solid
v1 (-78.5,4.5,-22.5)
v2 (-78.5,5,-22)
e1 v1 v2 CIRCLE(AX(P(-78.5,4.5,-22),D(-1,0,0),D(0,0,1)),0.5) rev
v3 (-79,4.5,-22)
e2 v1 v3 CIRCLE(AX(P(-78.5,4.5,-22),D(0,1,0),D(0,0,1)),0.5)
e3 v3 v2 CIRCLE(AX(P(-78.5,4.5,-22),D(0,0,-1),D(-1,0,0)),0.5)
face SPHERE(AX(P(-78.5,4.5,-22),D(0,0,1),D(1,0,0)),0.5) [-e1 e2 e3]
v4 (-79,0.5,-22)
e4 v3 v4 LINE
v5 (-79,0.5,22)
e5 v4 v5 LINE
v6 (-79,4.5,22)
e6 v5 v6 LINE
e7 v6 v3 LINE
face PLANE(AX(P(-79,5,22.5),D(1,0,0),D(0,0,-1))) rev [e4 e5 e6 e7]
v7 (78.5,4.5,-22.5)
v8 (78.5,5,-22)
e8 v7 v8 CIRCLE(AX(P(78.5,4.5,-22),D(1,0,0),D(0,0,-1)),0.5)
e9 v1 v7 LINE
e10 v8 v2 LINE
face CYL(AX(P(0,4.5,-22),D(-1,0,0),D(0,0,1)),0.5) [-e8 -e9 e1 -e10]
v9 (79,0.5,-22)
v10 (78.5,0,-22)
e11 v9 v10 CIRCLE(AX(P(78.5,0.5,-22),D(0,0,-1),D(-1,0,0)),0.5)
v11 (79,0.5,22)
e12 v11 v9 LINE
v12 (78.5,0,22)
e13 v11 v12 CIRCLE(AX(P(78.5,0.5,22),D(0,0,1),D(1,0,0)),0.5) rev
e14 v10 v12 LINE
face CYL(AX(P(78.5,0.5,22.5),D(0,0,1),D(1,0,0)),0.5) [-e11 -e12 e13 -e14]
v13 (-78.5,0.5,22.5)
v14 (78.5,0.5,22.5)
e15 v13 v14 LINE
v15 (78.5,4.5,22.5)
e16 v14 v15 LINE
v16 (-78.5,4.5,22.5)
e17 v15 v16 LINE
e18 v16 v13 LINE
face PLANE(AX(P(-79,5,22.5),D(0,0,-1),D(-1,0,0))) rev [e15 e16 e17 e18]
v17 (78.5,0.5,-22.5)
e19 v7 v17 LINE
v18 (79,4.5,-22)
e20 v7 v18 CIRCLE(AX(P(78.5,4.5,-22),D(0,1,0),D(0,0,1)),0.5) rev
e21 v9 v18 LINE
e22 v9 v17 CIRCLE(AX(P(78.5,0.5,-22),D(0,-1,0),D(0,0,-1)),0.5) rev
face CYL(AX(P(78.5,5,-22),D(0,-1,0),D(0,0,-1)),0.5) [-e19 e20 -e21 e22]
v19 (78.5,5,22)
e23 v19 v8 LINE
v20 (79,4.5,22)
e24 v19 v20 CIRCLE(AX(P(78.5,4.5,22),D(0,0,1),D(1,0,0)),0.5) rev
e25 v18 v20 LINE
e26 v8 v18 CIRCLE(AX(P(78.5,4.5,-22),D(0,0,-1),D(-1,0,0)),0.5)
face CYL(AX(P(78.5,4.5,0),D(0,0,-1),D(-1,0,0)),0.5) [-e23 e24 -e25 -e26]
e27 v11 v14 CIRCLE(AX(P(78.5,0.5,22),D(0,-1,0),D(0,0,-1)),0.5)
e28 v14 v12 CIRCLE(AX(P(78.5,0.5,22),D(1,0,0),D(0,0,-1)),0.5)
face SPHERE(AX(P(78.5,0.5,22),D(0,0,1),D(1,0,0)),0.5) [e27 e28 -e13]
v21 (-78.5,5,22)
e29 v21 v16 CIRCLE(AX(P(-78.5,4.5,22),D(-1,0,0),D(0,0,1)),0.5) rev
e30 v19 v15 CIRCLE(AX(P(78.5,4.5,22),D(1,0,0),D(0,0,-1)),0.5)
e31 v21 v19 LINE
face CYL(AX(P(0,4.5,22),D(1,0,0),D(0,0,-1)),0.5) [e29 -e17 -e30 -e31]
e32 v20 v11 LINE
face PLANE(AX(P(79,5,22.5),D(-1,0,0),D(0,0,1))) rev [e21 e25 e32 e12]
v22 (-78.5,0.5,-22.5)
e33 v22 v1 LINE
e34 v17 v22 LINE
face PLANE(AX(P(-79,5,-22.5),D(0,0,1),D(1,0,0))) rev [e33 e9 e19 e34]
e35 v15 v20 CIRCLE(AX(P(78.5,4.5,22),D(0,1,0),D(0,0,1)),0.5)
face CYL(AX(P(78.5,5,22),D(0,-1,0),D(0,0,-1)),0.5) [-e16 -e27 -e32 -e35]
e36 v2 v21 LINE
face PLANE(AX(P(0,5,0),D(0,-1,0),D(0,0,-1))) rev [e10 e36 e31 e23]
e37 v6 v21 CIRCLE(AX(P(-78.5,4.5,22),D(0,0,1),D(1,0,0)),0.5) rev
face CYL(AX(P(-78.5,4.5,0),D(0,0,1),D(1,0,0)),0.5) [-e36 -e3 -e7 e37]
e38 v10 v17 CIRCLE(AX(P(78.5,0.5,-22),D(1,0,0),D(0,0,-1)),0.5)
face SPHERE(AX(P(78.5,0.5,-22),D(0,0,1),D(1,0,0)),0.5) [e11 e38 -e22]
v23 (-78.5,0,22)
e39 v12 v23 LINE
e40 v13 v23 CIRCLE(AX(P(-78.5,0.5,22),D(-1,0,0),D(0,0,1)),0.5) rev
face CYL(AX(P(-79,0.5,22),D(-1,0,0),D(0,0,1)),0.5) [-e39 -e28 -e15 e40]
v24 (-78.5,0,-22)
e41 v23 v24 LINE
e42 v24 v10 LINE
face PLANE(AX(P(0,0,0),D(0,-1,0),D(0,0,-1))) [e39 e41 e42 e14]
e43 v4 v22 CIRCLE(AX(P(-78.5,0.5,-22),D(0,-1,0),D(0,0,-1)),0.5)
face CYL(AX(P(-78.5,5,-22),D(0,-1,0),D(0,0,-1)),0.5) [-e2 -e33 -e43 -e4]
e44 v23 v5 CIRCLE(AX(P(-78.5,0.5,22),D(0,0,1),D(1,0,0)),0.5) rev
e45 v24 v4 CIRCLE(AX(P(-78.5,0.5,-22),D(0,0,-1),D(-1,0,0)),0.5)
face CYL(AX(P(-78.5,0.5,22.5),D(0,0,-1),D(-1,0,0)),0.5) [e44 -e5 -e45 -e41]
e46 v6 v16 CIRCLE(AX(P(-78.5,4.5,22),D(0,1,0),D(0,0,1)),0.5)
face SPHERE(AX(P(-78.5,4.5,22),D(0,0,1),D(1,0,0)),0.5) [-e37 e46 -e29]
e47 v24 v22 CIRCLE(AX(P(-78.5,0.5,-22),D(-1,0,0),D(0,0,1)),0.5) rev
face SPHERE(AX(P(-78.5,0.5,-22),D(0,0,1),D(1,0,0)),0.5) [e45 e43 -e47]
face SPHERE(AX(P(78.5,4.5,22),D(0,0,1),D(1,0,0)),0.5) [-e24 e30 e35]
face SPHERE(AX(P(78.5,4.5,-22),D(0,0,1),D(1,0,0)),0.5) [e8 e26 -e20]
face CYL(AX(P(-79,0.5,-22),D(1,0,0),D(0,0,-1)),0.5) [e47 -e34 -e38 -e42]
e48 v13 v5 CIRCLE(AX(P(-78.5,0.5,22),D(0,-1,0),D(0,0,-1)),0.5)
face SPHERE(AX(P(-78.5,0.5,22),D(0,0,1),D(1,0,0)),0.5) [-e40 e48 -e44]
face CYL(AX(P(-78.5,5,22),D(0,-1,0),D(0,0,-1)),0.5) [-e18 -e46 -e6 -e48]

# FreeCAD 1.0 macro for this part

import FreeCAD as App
import Part
import Sketcher
Q = App.Units.Quantity

doc = App.newDocument("Part")
body = doc.addObject("PartDesign::Body", "Body")

# Sketch on XZ plane
sketch1 = body.newObject("Sketcher::SketchObject", "Sketch")
sketch1.AttachmentSupport = (doc.getObject("XZ_Plane"), [""])
sketch1.MapMode = "FlatFace"
sketch1.addGeometry([
    Part.LineSegment(App.Vector(-79, -22, 0), App.Vector(-79, 22, 0)),
    Part.LineSegment(App.Vector(-79, 22, 0), App.Vector(79, 22, 0)),
    Part.LineSegment(App.Vector(79, 22, 0), App.Vector(79, -22, 0)),
    Part.LineSegment(App.Vector(79, -22, 0), App.Vector(-79, -22, 0)),
], False)
sketch1.addConstraint([
    Sketcher.Constraint("Coincident", 0, 2, 1, 1),
    Sketcher.Constraint("Coincident", 1, 2, 2, 1),
    Sketcher.Constraint("Coincident", 2, 2, 3, 1),
    Sketcher.Constraint("Coincident", 3, 2, 0, 1),
    Sketcher.Constraint("Vertical", 0),
    Sketcher.Constraint("Horizontal", 1),
    Sketcher.Constraint("Vertical", 2),
    Sketcher.Constraint("Horizontal", 3),
    Sketcher.Constraint("Symmetric", 0, 2, 2, 2, -1, 1),
    Sketcher.Constraint("DistanceX", 1, 1, 1, 2, Q("158 mm")),
    Sketcher.Constraint("DistanceY", 0, 1, 0, 2, Q("45 mm")),
])
pad1 = body.newObject("PartDesign::Pad", "Pad")
pad1.Profile = sketch1
pad1.Length = 5
pad1.Reversed = True
doc.recompute()

fillet = body.newObject("PartDesign::Fillet", "Fillet")
fillet.Base = (pad1, ["Edge1"])
fillet.UseAllEdges = True
fillet.Radius = 0.5

doc.recompute()
